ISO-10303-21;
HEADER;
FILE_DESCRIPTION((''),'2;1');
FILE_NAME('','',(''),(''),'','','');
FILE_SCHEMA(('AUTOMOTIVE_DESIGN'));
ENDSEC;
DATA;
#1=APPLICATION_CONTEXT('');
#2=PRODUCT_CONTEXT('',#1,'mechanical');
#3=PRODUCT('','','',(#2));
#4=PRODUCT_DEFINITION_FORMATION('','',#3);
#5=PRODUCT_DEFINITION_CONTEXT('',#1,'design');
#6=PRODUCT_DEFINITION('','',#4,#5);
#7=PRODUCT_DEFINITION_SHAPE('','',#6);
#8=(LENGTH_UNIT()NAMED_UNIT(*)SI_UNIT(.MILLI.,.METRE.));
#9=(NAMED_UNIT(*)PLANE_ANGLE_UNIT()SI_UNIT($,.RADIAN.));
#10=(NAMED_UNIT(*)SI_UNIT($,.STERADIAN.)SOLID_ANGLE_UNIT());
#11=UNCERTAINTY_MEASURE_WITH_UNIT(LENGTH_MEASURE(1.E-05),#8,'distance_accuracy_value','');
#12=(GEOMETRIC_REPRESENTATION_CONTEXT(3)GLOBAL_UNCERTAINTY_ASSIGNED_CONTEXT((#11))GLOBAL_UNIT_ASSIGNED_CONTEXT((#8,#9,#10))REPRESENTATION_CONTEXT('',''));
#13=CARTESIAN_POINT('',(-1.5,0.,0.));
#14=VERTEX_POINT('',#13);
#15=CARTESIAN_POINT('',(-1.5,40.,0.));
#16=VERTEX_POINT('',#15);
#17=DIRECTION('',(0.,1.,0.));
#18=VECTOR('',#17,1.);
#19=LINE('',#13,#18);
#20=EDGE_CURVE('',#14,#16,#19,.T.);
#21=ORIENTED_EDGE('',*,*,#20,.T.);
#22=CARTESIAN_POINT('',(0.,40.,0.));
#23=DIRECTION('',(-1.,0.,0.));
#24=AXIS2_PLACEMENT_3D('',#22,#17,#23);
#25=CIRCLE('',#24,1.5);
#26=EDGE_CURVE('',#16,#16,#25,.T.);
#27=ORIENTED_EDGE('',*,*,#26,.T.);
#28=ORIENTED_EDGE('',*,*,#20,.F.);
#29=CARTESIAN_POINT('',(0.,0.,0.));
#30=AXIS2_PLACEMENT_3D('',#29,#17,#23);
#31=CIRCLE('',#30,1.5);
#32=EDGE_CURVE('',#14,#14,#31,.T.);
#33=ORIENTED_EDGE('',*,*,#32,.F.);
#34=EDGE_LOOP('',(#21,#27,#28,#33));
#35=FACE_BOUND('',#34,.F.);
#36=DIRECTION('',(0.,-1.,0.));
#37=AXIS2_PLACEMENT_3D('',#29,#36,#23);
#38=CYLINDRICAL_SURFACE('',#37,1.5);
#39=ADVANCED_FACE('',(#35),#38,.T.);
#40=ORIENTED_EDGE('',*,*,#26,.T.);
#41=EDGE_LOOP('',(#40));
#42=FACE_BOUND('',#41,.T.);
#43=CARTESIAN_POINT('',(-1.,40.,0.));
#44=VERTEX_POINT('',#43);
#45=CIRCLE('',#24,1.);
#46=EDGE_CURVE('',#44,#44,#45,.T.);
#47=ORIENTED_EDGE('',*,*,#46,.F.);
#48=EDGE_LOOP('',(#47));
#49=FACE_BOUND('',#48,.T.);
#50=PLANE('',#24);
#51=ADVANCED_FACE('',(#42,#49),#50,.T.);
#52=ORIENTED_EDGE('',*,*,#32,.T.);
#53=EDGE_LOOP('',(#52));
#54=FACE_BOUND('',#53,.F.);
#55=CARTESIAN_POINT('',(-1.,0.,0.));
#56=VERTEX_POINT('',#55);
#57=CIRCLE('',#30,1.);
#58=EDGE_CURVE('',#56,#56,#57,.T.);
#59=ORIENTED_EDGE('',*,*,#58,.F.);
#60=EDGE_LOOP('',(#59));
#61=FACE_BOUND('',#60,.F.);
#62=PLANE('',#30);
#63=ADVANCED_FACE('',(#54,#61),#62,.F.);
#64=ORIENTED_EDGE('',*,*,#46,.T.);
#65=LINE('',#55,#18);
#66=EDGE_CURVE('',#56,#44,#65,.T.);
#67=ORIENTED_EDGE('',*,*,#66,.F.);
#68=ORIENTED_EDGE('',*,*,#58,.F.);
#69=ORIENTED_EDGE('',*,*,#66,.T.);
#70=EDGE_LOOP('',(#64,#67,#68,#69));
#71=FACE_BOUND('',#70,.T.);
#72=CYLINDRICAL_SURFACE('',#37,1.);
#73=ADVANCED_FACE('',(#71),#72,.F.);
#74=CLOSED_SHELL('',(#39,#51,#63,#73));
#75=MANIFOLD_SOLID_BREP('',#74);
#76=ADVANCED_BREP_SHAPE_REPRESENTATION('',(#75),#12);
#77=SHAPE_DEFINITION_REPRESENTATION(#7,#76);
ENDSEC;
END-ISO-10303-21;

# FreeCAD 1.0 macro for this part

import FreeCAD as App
import Part
import Sketcher
Q = App.Units.Quantity

doc = App.newDocument("Part")
body = doc.addObject("PartDesign::Body", "Body")

# Sketch on XZ plane
sketch1 = body.newObject("Sketcher::SketchObject", "Sketch")
sketch1.AttachmentSupport = (doc.getObject("XZ_Plane"), [""])
sketch1.MapMode = "FlatFace"
sketch1.addGeometry(Part.Circle(App.Vector(0, 0, 0), App.Vector(0, 0, 1), 1.5), False)
sketch1.addGeometry(Part.Circle(App.Vector(0, 0, 0), App.Vector(0, 0, 1), 1), False)
sketch1.addConstraint(Sketcher.Constraint("Coincident", 0, 3, -1, 1))
sketch1.addConstraint(Sketcher.Constraint("Coincident", 1, 3, -1, 1))
sketch1.addConstraint(Sketcher.Constraint("Diameter", 0, Q("3 mm")))
sketch1.addConstraint(Sketcher.Constraint("Diameter", 1, Q("2 mm")))
pad1 = body.newObject("PartDesign::Pad", "Pad")
pad1.Profile = sketch1
pad1.Length = 40
pad1.Reversed = True

doc.recompute()
